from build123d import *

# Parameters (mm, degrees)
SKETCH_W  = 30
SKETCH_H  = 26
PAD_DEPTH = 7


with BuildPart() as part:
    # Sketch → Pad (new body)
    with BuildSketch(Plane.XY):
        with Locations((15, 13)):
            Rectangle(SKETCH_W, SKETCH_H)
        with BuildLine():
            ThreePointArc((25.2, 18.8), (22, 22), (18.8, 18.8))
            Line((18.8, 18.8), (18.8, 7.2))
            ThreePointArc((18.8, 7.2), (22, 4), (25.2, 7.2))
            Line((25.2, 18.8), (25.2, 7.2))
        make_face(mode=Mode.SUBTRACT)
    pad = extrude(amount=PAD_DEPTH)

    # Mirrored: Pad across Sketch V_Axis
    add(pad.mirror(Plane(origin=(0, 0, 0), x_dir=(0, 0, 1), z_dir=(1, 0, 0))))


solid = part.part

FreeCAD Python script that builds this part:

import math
import FreeCAD as App
import Part
import Sketcher
from FreeCAD import Vector

doc = App.newDocument("Part")
params = doc.addObject("Spreadsheet::Sheet", "Params")
for row, (alias, value) in enumerate([
    ("sketch1_radius", "3.2 mm"),
    ("sketch1_width", "30 mm"),
    ("sketch1_height", "26 mm"),
    ("sketch1_height2", "11.6 mm"),
    ("pad1_length", "7 mm"),
], start=1):
    params.set(f"A{row}", alias)
    params.set(f"B{row}", "=" + value)
    params.setAlias(f"B{row}", alias)

body = doc.addObject("PartDesign::Body", "Body")

sketch1 = doc.addObject("Sketcher::SketchObject", "Sketch")
body.addObject(sketch1)
sketch1.AttachmentSupport = (doc.XY_Plane, [""])
sketch1.MapMode = "FlatFace"
sketch1.addGeometry(Part.LineSegment(Vector(0, 26, 0), Vector(0, 0, 0)), False)
sketch1.addGeometry(Part.LineSegment(Vector(0, 0, 0), Vector(30, 0, 0)), False)
sketch1.addGeometry(Part.LineSegment(Vector(30, 0, 0), Vector(30, 26, 0)), False)
sketch1.addGeometry(Part.LineSegment(Vector(30, 26, 0), Vector(0, 26, 0)), False)
sketch1.addGeometry(Part.ArcOfCircle(Part.Circle(Vector(22, 18.8, 0), Vector(0, 0, 1), 3.2), math.radians(0), math.radians(180)), False)
sketch1.addGeometry(Part.LineSegment(Vector(25.2, 18.8, 0), Vector(25.2, 7.2, 0)), False)
sketch1.addGeometry(Part.ArcOfCircle(Part.Circle(Vector(22, 7.2, 0), Vector(0, 0, 1), 3.2), math.radians(180), math.radians(360)), False)
sketch1.addGeometry(Part.LineSegment(Vector(18.8, 7.2, 0), Vector(18.8, 18.8, 0)), False)
sketch1.addConstraint(Sketcher.Constraint("Coincident", 0, 2, 1, 1))
sketch1.addConstraint(Sketcher.Constraint("Coincident", 1, 2, 2, 1))
sketch1.addConstraint(Sketcher.Constraint("Coincident", 2, 2, 3, 1))
sketch1.addConstraint(Sketcher.Constraint("Coincident", 3, 2, 0, 1))
sketch1.addConstraint(Sketcher.Constraint("Tangent", 4, 1, 5, 1))
sketch1.addConstraint(Sketcher.Constraint("Tangent", 5, 2, 6, 2))
sketch1.addConstraint(Sketcher.Constraint("Tangent", 6, 1, 7, 1))
sketch1.addConstraint(Sketcher.Constraint("Tangent", 7, 2, 4, 2))
sketch1.addConstraint(Sketcher.Constraint("Vertical", 0))
sketch1.addConstraint(Sketcher.Constraint("Horizontal", 1))
sketch1.addConstraint(Sketcher.Constraint("Vertical", 2))
sketch1.addConstraint(Sketcher.Constraint("Horizontal", 3))
sketch1.addConstraint(Sketcher.Constraint("Vertical", 5))
sketch1.addConstraint(Sketcher.Constraint("Vertical", 7))
sketch1.addConstraint(Sketcher.Constraint("Coincident", 0, 2, -1, 1))
sketch1.addConstraint(Sketcher.Constraint("Radius", 4, 3.2))
sketch1.addConstraint(Sketcher.Constraint("DistanceX", 1, 1, 1, 2, 30.0))
sketch1.addConstraint(Sketcher.Constraint("DistanceY", 0, 2, 0, 1, 26.0))
sketch1.addConstraint(Sketcher.Constraint("DistanceY", 5, 2, 5, 1, 11.6))
sketch1.addConstraint(Sketcher.Constraint("DistanceX", -1, 1, 4, 3, 22.0))
sketch1.addConstraint(Sketcher.Constraint("DistanceY", -1, 1, 4, 3, 18.8))
sketch1.setExpression("Constraints[15]", "Params.sketch1_radius")
sketch1.setExpression("Constraints[16]", "Params.sketch1_width")
sketch1.setExpression("Constraints[17]", "Params.sketch1_height")
sketch1.setExpression("Constraints[18]", "Params.sketch1_height2")
pad1 = doc.addObject("PartDesign::Pad", "Pad")
body.addObject(pad1)
pad1.Profile = sketch1
pad1.setExpression("Length", "Params.pad1_length")
doc.recompute()

mirrored = doc.addObject("PartDesign::Mirrored", "Mirrored")
body.addObject(mirrored)
mirrored.Originals = [pad1]
mirrored.MirrorPlane = (doc.YZ_Plane, [""])
body.Tip = mirrored

doc.recompute()
